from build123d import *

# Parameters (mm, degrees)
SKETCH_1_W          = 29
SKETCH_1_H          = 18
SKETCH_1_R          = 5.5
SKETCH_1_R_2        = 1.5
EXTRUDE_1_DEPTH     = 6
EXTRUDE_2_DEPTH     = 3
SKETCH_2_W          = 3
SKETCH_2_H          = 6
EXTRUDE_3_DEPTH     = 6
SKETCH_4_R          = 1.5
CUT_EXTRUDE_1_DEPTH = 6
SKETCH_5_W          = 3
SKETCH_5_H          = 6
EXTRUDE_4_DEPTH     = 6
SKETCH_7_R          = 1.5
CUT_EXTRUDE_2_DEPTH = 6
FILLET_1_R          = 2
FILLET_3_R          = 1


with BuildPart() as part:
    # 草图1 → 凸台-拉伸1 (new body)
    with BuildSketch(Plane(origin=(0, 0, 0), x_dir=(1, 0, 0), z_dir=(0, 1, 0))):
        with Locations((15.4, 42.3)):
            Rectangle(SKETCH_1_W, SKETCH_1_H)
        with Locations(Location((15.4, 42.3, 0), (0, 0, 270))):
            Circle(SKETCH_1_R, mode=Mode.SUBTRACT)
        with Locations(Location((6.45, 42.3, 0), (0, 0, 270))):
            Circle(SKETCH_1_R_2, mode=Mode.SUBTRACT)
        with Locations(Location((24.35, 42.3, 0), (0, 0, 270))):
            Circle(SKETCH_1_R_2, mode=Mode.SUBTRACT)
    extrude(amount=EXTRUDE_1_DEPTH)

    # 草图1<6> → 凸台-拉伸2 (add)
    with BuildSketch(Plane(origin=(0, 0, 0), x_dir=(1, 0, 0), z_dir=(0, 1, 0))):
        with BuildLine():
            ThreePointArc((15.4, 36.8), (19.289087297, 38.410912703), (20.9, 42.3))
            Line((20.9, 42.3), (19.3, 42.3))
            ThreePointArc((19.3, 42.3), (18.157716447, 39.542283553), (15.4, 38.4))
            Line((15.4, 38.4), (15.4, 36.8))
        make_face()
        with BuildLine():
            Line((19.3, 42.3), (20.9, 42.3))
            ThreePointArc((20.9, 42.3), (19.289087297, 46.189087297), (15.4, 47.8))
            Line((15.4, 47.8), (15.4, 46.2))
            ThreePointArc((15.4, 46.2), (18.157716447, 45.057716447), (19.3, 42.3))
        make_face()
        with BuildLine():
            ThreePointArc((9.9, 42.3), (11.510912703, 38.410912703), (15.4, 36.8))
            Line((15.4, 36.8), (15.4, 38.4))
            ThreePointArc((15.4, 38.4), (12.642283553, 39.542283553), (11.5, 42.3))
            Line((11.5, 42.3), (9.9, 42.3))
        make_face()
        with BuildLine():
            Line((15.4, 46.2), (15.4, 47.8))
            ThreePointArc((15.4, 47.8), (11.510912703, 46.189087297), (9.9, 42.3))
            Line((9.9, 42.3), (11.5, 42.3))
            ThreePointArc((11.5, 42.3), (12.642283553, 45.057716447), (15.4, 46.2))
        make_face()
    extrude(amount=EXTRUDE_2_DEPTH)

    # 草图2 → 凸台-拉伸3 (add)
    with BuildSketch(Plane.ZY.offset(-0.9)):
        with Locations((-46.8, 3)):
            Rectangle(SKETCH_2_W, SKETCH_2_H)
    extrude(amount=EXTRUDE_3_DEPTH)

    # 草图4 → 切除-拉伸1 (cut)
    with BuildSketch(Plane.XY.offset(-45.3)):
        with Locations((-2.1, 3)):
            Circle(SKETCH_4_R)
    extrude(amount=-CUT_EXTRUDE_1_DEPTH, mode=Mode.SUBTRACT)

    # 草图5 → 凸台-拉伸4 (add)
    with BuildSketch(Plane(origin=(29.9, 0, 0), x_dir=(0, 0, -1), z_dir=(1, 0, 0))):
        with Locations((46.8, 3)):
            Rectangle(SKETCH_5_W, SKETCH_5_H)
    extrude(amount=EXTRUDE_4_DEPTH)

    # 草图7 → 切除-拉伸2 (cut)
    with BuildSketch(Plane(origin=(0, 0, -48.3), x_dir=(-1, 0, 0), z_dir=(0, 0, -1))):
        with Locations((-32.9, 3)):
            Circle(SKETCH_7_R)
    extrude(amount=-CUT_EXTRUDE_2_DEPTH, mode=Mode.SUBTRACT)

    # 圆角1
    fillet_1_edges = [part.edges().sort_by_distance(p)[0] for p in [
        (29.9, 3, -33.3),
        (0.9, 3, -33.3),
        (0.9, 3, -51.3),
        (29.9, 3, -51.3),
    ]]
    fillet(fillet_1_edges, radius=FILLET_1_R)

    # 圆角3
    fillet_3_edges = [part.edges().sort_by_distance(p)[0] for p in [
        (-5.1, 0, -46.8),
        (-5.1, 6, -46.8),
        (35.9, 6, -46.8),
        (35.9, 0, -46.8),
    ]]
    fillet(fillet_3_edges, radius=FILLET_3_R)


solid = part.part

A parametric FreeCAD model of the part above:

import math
import FreeCAD as App
import Part
import Sketcher
Q = App.Units.Quantity


def edges_at(feature, points):
    """Names of the edges that pass closest to the given points."""
    edges = feature.Shape.Edges
    near = lambda p: min(range(len(edges)), key=lambda i: edges[i].distToShape(Part.Vertex(*p))[0])
    return sorted({f"Edge{near(p) + 1}" for p in points})

doc = App.newDocument("Part")
body = doc.addObject("PartDesign::Body", "Body")

sketch1 = doc.addObject("Sketcher::SketchObject", "Sketch")
body.addObject(sketch1)
sketch1.AttachmentSupport = (doc.XZ_Plane, [""])
sketch1.MapMode = "FlatFace"
sketch1.addGeometry(Part.LineSegment(App.Vector(0.9, -51.3, 0), App.Vector(0.9, -33.3, 0)), False)
sketch1.addGeometry(Part.LineSegment(App.Vector(0.9, -33.3, 0), App.Vector(29.9, -33.3, 0)), False)
sketch1.addGeometry(Part.LineSegment(App.Vector(29.9, -33.3, 0), App.Vector(29.9, -51.3, 0)), False)
sketch1.addGeometry(Part.LineSegment(App.Vector(29.9, -51.3, 0), App.Vector(0.9, -51.3, 0)), False)
sketch1.addGeometry(Part.Circle(App.Vector(6.45, -42.3, 0), App.Vector(0, 0, 1), 1.5), False)
sketch1.addGeometry(Part.Circle(App.Vector(15.4, -42.3, 0), App.Vector(0, 0, 1), 5.5), False)
sketch1.addGeometry(Part.Circle(App.Vector(24.35, -42.3, 0), App.Vector(0, 0, 1), 1.5), False)
sketch1.addConstraint(Sketcher.Constraint("Coincident", 0, 2, 1, 1))
sketch1.addConstraint(Sketcher.Constraint("Coincident", 1, 2, 2, 1))
sketch1.addConstraint(Sketcher.Constraint("Coincident", 2, 2, 3, 1))
sketch1.addConstraint(Sketcher.Constraint("Coincident", 3, 2, 0, 1))
sketch1.addConstraint(Sketcher.Constraint("Vertical", 0))
sketch1.addConstraint(Sketcher.Constraint("Horizontal", 1))
sketch1.addConstraint(Sketcher.Constraint("Vertical", 2))
sketch1.addConstraint(Sketcher.Constraint("Horizontal", 3))
sketch1.addConstraint(Sketcher.Constraint("Equal", 4, 6))
sketch1.addConstraint(Sketcher.Constraint("Horizontal", 4, 3, 5, 3))
sketch1.addConstraint(Sketcher.Constraint("Horizontal", 5, 3, 6, 3))
sketch1.addConstraint(Sketcher.Constraint("Diameter", 4, Q("3 mm")))
sketch1.addConstraint(Sketcher.Constraint("Diameter", 5, Q("11 mm")))
sketch1.addConstraint(Sketcher.Constraint("DistanceX", 1, 1, 1, 2, Q("29 mm")))
sketch1.addConstraint(Sketcher.Constraint("DistanceY", 0, 1, 0, 2, Q("18 mm")))
sketch1.addConstraint(Sketcher.Constraint("DistanceY", 4, 3, 0, 2, Q("9 mm")))
sketch1.addConstraint(Sketcher.Constraint("DistanceY", 4, 3, -1, 1, Q("42.3 mm")))
sketch1.addConstraint(Sketcher.Constraint("DistanceX", -1, 1, 5, 3, Q("15.4 mm")))
sketch1.addConstraint(Sketcher.Constraint("DistanceX", -1, 1, 0, 2, Q("0.9 mm")))
sketch1.addConstraint(Sketcher.Constraint("DistanceX", 4, 3, 6, 3, Q("17.9 mm")))
sketch1.addConstraint(Sketcher.Constraint("DistanceX", -1, 1, 4, 3, Q("6.45 mm")))
pad1 = doc.addObject("PartDesign::Pad", "Pad")
body.addObject(pad1)
pad1.Profile = sketch1
pad1.Length = 6
pad1.Reversed = True

sketch2 = doc.addObject("Sketcher::SketchObject", "Sketch001")
body.addObject(sketch2)
sketch2.AttachmentSupport = (doc.XZ_Plane, [""])
sketch2.MapMode = "FlatFace"
sketch2.addGeometry(Part.ArcOfCircle(Part.Circle(App.Vector(15.4, -42.3, 0), App.Vector(0, 0, 1), 5.5), math.radians(0), math.radians(90)), False)
sketch2.addGeometry(Part.ArcOfCircle(Part.Circle(App.Vector(15.4, -42.3, 0), App.Vector(0, 0, 1), 5.5), math.radians(-90), math.radians(0)), False)
sketch2.addGeometry(Part.ArcOfCircle(Part.Circle(App.Vector(15.4, -42.3, 0), App.Vector(0, 0, 1), 5.5), math.radians(180), math.radians(270)), False)
sketch2.addGeometry(Part.ArcOfCircle(Part.Circle(App.Vector(15.4, -42.3, 0), App.Vector(0, 0, 1), 5.5), math.radians(90), math.radians(180)), False)
sketch2.addGeometry(Part.ArcOfCircle(Part.Circle(App.Vector(15.4, -42.3, 0), App.Vector(0, 0, 1), 3.9), math.radians(90), math.radians(180)), False)
sketch2.addGeometry(Part.ArcOfCircle(Part.Circle(App.Vector(15.4, -42.3, 0), App.Vector(0, 0, 1), 3.9), math.radians(180), math.radians(270)), False)
sketch2.addGeometry(Part.ArcOfCircle(Part.Circle(App.Vector(15.4, -42.3, 0), App.Vector(0, 0, 1), 3.9), math.radians(-90), math.radians(0)), False)
sketch2.addGeometry(Part.ArcOfCircle(Part.Circle(App.Vector(15.4, -42.3, 0), App.Vector(0, 0, 1), 3.9), math.radians(0), math.radians(90)), False)
sketch2.addConstraint(Sketcher.Constraint("Tangent", 0, 1, 1, 2))
sketch2.addConstraint(Sketcher.Constraint("Tangent", 1, 1, 2, 2))
sketch2.addConstraint(Sketcher.Constraint("Tangent", 2, 1, 3, 2))
sketch2.addConstraint(Sketcher.Constraint("Tangent", 3, 1, 0, 2))
sketch2.addConstraint(Sketcher.Constraint("Tangent", 4, 2, 5, 1))
sketch2.addConstraint(Sketcher.Constraint("Tangent", 5, 2, 6, 1))
sketch2.addConstraint(Sketcher.Constraint("Tangent", 6, 2, 7, 1))
sketch2.addConstraint(Sketcher.Constraint("Tangent", 7, 2, 4, 1))
sketch2.addConstraint(Sketcher.Constraint("Coincident", 4, 3, 0, 3))
sketch2.addConstraint(Sketcher.Constraint("Equal", 0, 1))
sketch2.addConstraint(Sketcher.Constraint("Equal", 4, 5))
sketch2.addConstraint(Sketcher.Constraint("Horizontal", 7, 3, 0, 1))
sketch2.addConstraint(Sketcher.Constraint("Horizontal", 0, 1, 2, 1))
sketch2.addConstraint(Sketcher.Constraint("Horizontal", 2, 1, 4, 2))
sketch2.addConstraint(Sketcher.Constraint("Horizontal", 4, 2, 6, 2))
sketch2.addConstraint(Sketcher.Constraint("Vertical", 7, 3, 1, 1))
sketch2.addConstraint(Sketcher.Constraint("Vertical", 1, 1, 3, 1))
sketch2.addConstraint(Sketcher.Constraint("Vertical", 3, 1, 5, 2))
sketch2.addConstraint(Sketcher.Constraint("Vertical", 5, 2, 7, 2))
sketch2.addConstraint(Sketcher.Constraint("Radius", 0, Q("5.5 mm")))
sketch2.addConstraint(Sketcher.Constraint("Radius", 4, Q("3.9 mm")))
sketch2.addConstraint(Sketcher.Constraint("DistanceX", -1, 1, 0, 3, Q("15.4 mm")))
sketch2.addConstraint(Sketcher.Constraint("DistanceY", 0, 3, -1, 1, Q("42.3 mm")))
pad2 = doc.addObject("PartDesign::Pad", "Pad001")
body.addObject(pad2)
pad2.Profile = sketch2
pad2.Length = 3
pad2.Reversed = True

sketch3 = doc.addObject("Sketcher::SketchObject", "Sketch002")
body.addObject(sketch3)
sketch3.AttachmentSupport = (doc.YZ_Plane, [""])
sketch3.MapMode = "FlatFace"
sketch3.AttachmentOffset = App.Placement(App.Vector(0, 0, 0.9), App.Rotation())
sketch3.addGeometry(Part.LineSegment(App.Vector(6, -48.3, 0), App.Vector(0, -48.3, 0)), False)
sketch3.addGeometry(Part.LineSegment(App.Vector(0, -48.3, 0), App.Vector(0, -45.3, 0)), False)
sketch3.addGeometry(Part.LineSegment(App.Vector(0, -45.3, 0), App.Vector(6, -45.3, 0)), False)
sketch3.addGeometry(Part.LineSegment(App.Vector(6, -45.3, 0), App.Vector(6, -48.3, 0)), False)
sketch3.addConstraint(Sketcher.Constraint("Coincident", 0, 2, 1, 1))
sketch3.addConstraint(Sketcher.Constraint("Coincident", 1, 2, 2, 1))
sketch3.addConstraint(Sketcher.Constraint("Coincident", 2, 2, 3, 1))
sketch3.addConstraint(Sketcher.Constraint("Coincident", 3, 2, 0, 1))
sketch3.addConstraint(Sketcher.Constraint("Horizontal", 0))
sketch3.addConstraint(Sketcher.Constraint("Vertical", 1))
sketch3.addConstraint(Sketcher.Constraint("Horizontal", 2))
sketch3.addConstraint(Sketcher.Constraint("Vertical", 3))
sketch3.addConstraint(Sketcher.Constraint("PointOnObject", 0, 2, -2))
sketch3.addConstraint(Sketcher.Constraint("DistanceX", 0, 2, 0, 1, Q("6 mm")))
sketch3.addConstraint(Sketcher.Constraint("DistanceY", 1, 1, 1, 2, Q("3 mm")))
sketch3.addConstraint(Sketcher.Constraint("DistanceY", 0, 2, -1, 1, Q("48.3 mm")))
pad3 = doc.addObject("PartDesign::Pad", "Pad002")
body.addObject(pad3)
pad3.Profile = sketch3
pad3.Length = 6
pad3.Reversed = True

sketch4 = doc.addObject("Sketcher::SketchObject", "Sketch003")
body.addObject(sketch4)
sketch4.AttachmentSupport = (doc.XY_Plane, [""])
sketch4.MapMode = "FlatFace"
sketch4.AttachmentOffset = App.Placement(App.Vector(0, 0, -45.3), App.Rotation())
sketch4.addGeometry(Part.Circle(App.Vector(-2.1, 3, 0), App.Vector(0, 0, 1), 1.5), False)
sketch4.addConstraint(Sketcher.Constraint("Diameter", 0, Q("3 mm")))
sketch4.addConstraint(Sketcher.Constraint("DistanceY", -1, 1, 0, 3, Q("3 mm")))
sketch4.addConstraint(Sketcher.Constraint("DistanceX", 0, 3, -1, 1, Q("2.1 mm")))
pocket1 = doc.addObject("PartDesign::Pocket", "Pocket")
body.addObject(pocket1)
pocket1.Profile = sketch4
pocket1.Length = 6

sketch5 = doc.addObject("Sketcher::SketchObject", "Sketch004")
body.addObject(sketch5)
sketch5.AttachmentSupport = (doc.YZ_Plane, [""])
sketch5.MapMode = "FlatFace"
sketch5.AttachmentOffset = App.Placement(App.Vector(0, 0, 29.9), App.Rotation())
sketch5.addGeometry(Part.LineSegment(App.Vector(6, -45.3, 0), App.Vector(0, -45.3, 0)), False)
sketch5.addGeometry(Part.LineSegment(App.Vector(0, -45.3, 0), App.Vector(0, -48.3, 0)), False)
sketch5.addGeometry(Part.LineSegment(App.Vector(0, -48.3, 0), App.Vector(6, -48.3, 0)), False)
sketch5.addGeometry(Part.LineSegment(App.Vector(6, -48.3, 0), App.Vector(6, -45.3, 0)), False)
sketch5.addConstraint(Sketcher.Constraint("Coincident", 0, 2, 1, 1))
sketch5.addConstraint(Sketcher.Constraint("Coincident", 1, 2, 2, 1))
sketch5.addConstraint(Sketcher.Constraint("Coincident", 2, 2, 3, 1))
sketch5.addConstraint(Sketcher.Constraint("Coincident", 3, 2, 0, 1))
sketch5.addConstraint(Sketcher.Constraint("Horizontal", 0))
sketch5.addConstraint(Sketcher.Constraint("Vertical", 1))
sketch5.addConstraint(Sketcher.Constraint("Horizontal", 2))
sketch5.addConstraint(Sketcher.Constraint("Vertical", 3))
sketch5.addConstraint(Sketcher.Constraint("PointOnObject", 0, 2, -2))
sketch5.addConstraint(Sketcher.Constraint("DistanceX", 0, 2, 0, 1, Q("6 mm")))
sketch5.addConstraint(Sketcher.Constraint("DistanceY", 1, 2, 1, 1, Q("3 mm")))
sketch5.addConstraint(Sketcher.Constraint("DistanceY", 0, 2, -1, 1, Q("45.3 mm")))
pad4 = doc.addObject("PartDesign::Pad", "Pad003")
body.addObject(pad4)
pad4.Profile = sketch5
pad4.Length = 6

sketch6 = doc.addObject("Sketcher::SketchObject", "Sketch005")
body.addObject(sketch6)
sketch6.AttachmentSupport = (doc.XY_Plane, [""])
sketch6.MapMode = "FlatFace"
sketch6.AttachmentOffset = App.Placement(App.Vector(0, 0, -48.3), App.Rotation())
sketch6.addGeometry(Part.Circle(App.Vector(32.9, 3, 0), App.Vector(0, 0, 1), 1.5), False)
sketch6.addConstraint(Sketcher.Constraint("Diameter", 0, Q("3 mm")))
sketch6.addConstraint(Sketcher.Constraint("DistanceY", -1, 1, 0, 3, Q("3 mm")))
sketch6.addConstraint(Sketcher.Constraint("DistanceX", -1, 1, 0, 3, Q("32.9 mm")))
pocket2 = doc.addObject("PartDesign::Pocket", "Pocket001")
body.addObject(pocket2)
pocket2.Profile = sketch6
pocket2.Length = 6
pocket2.Reversed = True
doc.recompute()

fillet = doc.addObject("PartDesign::Fillet", "Fillet")
body.addObject(fillet)
fillet.Base = (pocket2, edges_at(pocket2, [
    (29.9, 3, -33.3),
    (0.9, 3, -33.3),
    (0.9, 3, -51.3),
    (29.9, 3, -51.3),
]))
fillet.Radius = 2
doc.recompute()

fillet2 = doc.addObject("PartDesign::Fillet", "Fillet001")
body.addObject(fillet2)
fillet2.Base = (fillet, edges_at(fillet, [
    (-5.1, 0, -46.8),
    (-5.1, 6, -46.8),
    (35.9, 6, -46.8),
    (35.9, 0, -46.8),
]))
fillet2.Radius = 1

doc.recompute()
